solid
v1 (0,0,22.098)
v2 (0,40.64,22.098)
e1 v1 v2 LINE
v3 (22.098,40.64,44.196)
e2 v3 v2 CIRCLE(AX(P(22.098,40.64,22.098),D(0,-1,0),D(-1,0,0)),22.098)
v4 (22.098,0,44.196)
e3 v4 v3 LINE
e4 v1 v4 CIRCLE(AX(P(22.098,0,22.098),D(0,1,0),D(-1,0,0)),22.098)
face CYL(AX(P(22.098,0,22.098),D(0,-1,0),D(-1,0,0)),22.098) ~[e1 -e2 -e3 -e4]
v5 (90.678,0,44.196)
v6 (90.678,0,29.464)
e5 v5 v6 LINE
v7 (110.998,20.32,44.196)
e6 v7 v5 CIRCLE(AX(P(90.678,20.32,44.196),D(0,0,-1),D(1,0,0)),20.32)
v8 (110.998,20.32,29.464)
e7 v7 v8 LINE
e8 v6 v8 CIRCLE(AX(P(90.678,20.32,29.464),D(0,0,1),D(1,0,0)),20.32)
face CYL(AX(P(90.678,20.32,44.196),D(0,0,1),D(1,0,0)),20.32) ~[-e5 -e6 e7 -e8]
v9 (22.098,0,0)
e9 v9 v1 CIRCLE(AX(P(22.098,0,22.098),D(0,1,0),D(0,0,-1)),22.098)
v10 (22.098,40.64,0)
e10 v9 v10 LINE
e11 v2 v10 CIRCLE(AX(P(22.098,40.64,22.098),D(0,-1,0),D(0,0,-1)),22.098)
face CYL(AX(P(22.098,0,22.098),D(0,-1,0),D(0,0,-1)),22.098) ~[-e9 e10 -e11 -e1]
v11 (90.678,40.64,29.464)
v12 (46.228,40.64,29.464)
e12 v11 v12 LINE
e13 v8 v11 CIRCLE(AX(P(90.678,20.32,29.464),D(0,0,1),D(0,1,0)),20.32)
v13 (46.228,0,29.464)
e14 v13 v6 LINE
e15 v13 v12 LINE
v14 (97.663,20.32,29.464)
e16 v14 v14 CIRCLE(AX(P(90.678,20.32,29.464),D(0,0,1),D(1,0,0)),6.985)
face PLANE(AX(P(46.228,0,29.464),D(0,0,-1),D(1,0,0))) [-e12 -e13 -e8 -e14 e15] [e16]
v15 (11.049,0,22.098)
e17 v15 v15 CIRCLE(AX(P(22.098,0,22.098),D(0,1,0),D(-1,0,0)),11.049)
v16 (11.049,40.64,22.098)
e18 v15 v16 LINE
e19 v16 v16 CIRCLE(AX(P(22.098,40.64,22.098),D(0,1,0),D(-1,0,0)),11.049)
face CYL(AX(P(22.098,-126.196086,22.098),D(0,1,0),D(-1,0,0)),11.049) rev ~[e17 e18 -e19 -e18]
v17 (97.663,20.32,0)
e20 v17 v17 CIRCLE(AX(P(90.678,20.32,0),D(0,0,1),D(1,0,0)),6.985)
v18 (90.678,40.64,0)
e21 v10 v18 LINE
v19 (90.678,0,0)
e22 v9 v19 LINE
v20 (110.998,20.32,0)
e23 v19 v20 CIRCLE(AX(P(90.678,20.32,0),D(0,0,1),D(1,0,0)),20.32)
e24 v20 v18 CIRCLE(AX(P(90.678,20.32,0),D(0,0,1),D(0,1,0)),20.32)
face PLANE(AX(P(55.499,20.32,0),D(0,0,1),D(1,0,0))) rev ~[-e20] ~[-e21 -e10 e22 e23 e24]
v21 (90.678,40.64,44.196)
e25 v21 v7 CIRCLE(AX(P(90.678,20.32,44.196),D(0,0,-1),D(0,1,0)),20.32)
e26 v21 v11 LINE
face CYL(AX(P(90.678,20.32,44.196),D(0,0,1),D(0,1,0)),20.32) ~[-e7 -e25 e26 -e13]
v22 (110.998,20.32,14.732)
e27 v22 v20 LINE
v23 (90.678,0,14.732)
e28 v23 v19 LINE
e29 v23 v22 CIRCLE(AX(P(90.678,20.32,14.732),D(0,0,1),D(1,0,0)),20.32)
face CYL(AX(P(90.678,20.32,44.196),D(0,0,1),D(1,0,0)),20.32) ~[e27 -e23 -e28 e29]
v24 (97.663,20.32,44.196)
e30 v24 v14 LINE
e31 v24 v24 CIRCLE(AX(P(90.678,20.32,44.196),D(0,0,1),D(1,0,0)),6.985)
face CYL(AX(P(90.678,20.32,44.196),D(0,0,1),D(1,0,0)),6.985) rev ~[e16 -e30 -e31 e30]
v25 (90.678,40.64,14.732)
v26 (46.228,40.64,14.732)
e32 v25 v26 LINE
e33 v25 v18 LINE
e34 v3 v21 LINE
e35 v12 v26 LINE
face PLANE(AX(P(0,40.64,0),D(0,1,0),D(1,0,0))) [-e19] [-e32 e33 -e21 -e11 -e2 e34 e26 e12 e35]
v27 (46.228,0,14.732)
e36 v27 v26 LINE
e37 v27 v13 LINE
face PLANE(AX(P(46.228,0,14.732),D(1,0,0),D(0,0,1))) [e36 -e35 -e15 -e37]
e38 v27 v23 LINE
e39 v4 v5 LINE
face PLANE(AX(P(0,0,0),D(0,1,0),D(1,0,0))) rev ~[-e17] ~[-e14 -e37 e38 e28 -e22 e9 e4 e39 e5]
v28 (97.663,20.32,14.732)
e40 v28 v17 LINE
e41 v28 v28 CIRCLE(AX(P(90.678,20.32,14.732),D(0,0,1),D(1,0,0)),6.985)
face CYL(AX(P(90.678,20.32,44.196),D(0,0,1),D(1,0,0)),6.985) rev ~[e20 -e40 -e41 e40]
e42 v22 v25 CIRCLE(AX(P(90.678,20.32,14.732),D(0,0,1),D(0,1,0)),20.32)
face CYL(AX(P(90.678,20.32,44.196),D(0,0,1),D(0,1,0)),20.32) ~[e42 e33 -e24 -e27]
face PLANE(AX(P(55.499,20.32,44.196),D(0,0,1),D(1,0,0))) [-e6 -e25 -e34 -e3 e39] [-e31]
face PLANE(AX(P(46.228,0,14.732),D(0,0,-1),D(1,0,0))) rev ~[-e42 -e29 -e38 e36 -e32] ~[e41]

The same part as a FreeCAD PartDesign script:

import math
import FreeCAD as App
import Part
import Sketcher
from FreeCAD import Vector
Q = App.Units.Quantity


def add_polygon(sketch, points):
    """Adds a closed chain of lines whose ends are joined by coincident constraints."""
    first, n = sketch.GeometryCount, len(points)
    for a, b in zip(points, points[1:] + points[:1]):
        sketch.addGeometry(Part.LineSegment(App.Vector(*a, 0), App.Vector(*b, 0)), False)
    for i in range(n):
        sketch.addConstraint(Sketcher.Constraint("Coincident", first + i, 2, first + (i + 1) % n, 1))

doc = App.newDocument("Part")
body = doc.addObject("PartDesign::Body", "Body")

# Sketch on XY plane
sketch1 = body.newObject("Sketcher::SketchObject", "Sketch")
sketch1.AttachmentSupport = (doc.getObject("XY_Plane"), [""])
sketch1.MapMode = "FlatFace"
add_polygon(sketch1, [(0, 41), (0, 0), (111, 0), (111, 41)])  # lines 0-3
sketch1.addConstraint([
    Sketcher.Constraint("Vertical", 0),
    Sketcher.Constraint("Horizontal", 1),
    Sketcher.Constraint("Vertical", 2),
    Sketcher.Constraint("Horizontal", 3),
    Sketcher.Constraint("Coincident", 0, 2, -1, 1),
    Sketcher.Constraint("DistanceY", 0, 2, 0, 1, Q("1.6 in")),
    Sketcher.Constraint("DistanceX", 1, 1, 1, 2, Q("4.37 in")),
])
pad1 = body.newObject("PartDesign::Pad", "Pad")
pad1.Profile = sketch1
pad1.Length = Q("1.74 in")

# Sketch on XZ plane
sketch2 = body.newObject("Sketcher::SketchObject", "Sketch001")
sketch2.AttachmentSupport = (doc.getObject("XZ_Plane"), [""])
sketch2.MapMode = "FlatFace"
sketch2.addGeometry(Part.Circle(Vector(22, 22, 0), Vector(0, 0, 1), 11), False)
sketch2.addConstraint([
    Sketcher.Constraint("Diameter", 0, Q("0.87 in")),
    Sketcher.Constraint("DistanceX", -1, 1, 0, 3, Q("0.87 in")),
    Sketcher.Constraint("DistanceY", -1, 1, 0, 3, Q("0.87 in")),
])
doc.recompute()
hole = body.newObject("PartDesign::Hole", "Hole")
hole.Profile = sketch2
hole.ThreadType = "None"
hole.Diameter = Q("0.87 in")
hole.DepthType = "ThroughAll"

# Sketch on XY plane
sketch3 = body.newObject("Sketcher::SketchObject", "Sketch002")
sketch3.AttachmentSupport = (doc.getObject("XY_Plane"), [""])
sketch3.MapMode = "FlatFace"
sketch3.AttachmentOffset = App.Placement(Vector(0, 0, 1.74 * 25.4), App.Rotation())
sketch3.addGeometry(Part.Circle(Vector(91, 20, 0), Vector(0, 0, 1), 7), False)
sketch3.addConstraint([
    Sketcher.Constraint("Diameter", 0, Q("0.55 in")),
    Sketcher.Constraint("DistanceY", -1, 1, 0, 3, Q("0.8 in")),
    Sketcher.Constraint("DistanceX", -1, 1, 0, 3, Q("3.57 in")),
])
pocket1 = body.newObject("PartDesign::Pocket", "Pocket")
pocket1.Profile = sketch3
pocket1.Type = "ThroughAll"

# Sketch on XY plane
sketch4 = body.newObject("Sketcher::SketchObject", "Sketch003")
sketch4.AttachmentSupport = (doc.getObject("XY_Plane"), [""])
sketch4.MapMode = "FlatFace"
sketch4.AttachmentOffset = App.Placement(Vector(0, 0, 1.74 * 25.4), App.Rotation())
sketch4.addGeometry([
    Part.ArcOfCircle(Part.Circle(Vector(91, 20, 0), Vector(0, 0, 1), 20), math.radians(0), math.radians(90)),  # 0
    Part.LineSegment(Vector(111, 20, 0), Vector(111, 41, 0)),  # 1
    Part.LineSegment(Vector(111, 41, 0), Vector(91, 41, 0)),  # 2
    Part.LineSegment(Vector(111, 0, 0), Vector(111, 20, 0)),  # 3
    Part.ArcOfCircle(Part.Circle(Vector(91, 20, 0), Vector(0, 0, 1), 20), math.radians(-90), math.radians(0)),  # 4
    Part.LineSegment(Vector(91, 0, 0), Vector(111, 0, 0)),  # 5
], False)
sketch4.addConstraint([
    Sketcher.Constraint("Tangent", 0, 1, 1, 1),
    Sketcher.Constraint("Coincident", 1, 2, 2, 1),
    Sketcher.Constraint("Tangent", 2, 2, 0, 2),
    Sketcher.Constraint("Tangent", 3, 2, 4, 2),
    Sketcher.Constraint("Tangent", 4, 1, 5, 1),
    Sketcher.Constraint("Coincident", 5, 2, 3, 1),
    Sketcher.Constraint("Vertical", 1),
    Sketcher.Constraint("Horizontal", 2),
    Sketcher.Constraint("Vertical", 3),
    Sketcher.Constraint("Horizontal", 5),
    Sketcher.Constraint("Coincident", 4, 3, 0, 3),
    Sketcher.Constraint("Equal", 0, 4),
    Sketcher.Constraint("PointOnObject", 4, 1, -1),
    Sketcher.Constraint("Radius", 0, Q("0.8 in")),
    Sketcher.Constraint("DistanceX", -1, 1, 0, 3, Q("3.57 in")),
])
pocket2 = body.newObject("PartDesign::Pocket", "Pocket001")
pocket2.Profile = sketch4
pocket2.Type = "ThroughAll"

# Sketch on XZ plane
sketch5 = body.newObject("Sketcher::SketchObject", "Sketch004")
sketch5.AttachmentSupport = (doc.getObject("XZ_Plane"), [""])
sketch5.MapMode = "FlatFace"
add_polygon(sketch5, [(46, 29), (46, 15), (111, 15), (111, 29)])  # lines 0-3
sketch5.addConstraint([
    Sketcher.Constraint("Vertical", 0),
    Sketcher.Constraint("Horizontal", 1),
    Sketcher.Constraint("Vertical", 2),
    Sketcher.Constraint("Horizontal", 3),
    Sketcher.Constraint("DistanceX", 1, 1, 1, 2, Q("2.55 in")),
    Sketcher.Constraint("DistanceY", 0, 2, 0, 1, Q("0.58 in")),
    Sketcher.Constraint("DistanceX", -1, 1, 0, 2, Q("1.82 in")),
    Sketcher.Constraint("DistanceY", -1, 1, 0, 2, Q("0.58 in")),
])
pocket3 = body.newObject("PartDesign::Pocket", "Pocket002")
pocket3.Profile = sketch5
pocket3.Type = "ThroughAll"

# Sketch on XZ plane
sketch6 = body.newObject("Sketcher::SketchObject", "Sketch005")
sketch6.AttachmentSupport = (doc.getObject("XZ_Plane"), [""])
sketch6.MapMode = "FlatFace"
sketch6.addGeometry([
    Part.ArcOfCircle(Part.Circle(Vector(22, 22, 0), Vector(0, 0, 1), 22), math.radians(90), math.radians(180)),  # 0
    Part.LineSegment(Vector(22, 44, 0), Vector(0, 44, 0)),  # 1
    Part.LineSegment(Vector(0, 44, 0), Vector(0, 22, 0)),  # 2
    Part.LineSegment(Vector(0, 0, 0), Vector(22, 0, 0)),  # 3
    Part.ArcOfCircle(Part.Circle(Vector(22, 22, 0), Vector(0, 0, 1), 22), math.radians(180), math.radians(270)),  # 4
    Part.LineSegment(Vector(0, 22, 0), Vector(0, 0, 0)),  # 5
], False)
sketch6.addConstraint([
    Sketcher.Constraint("Tangent", 0, 1, 1, 1),
    Sketcher.Constraint("Coincident", 1, 2, 2, 1),
    Sketcher.Constraint("Tangent", 2, 2, 0, 2),
    Sketcher.Constraint("Tangent", 3, 2, 4, 2),
    Sketcher.Constraint("Tangent", 4, 1, 5, 1),
    Sketcher.Constraint("Coincident", 5, 2, 3, 1),
    Sketcher.Constraint("Horizontal", 1),
    Sketcher.Constraint("Vertical", 2),
    Sketcher.Constraint("Horizontal", 3),
    Sketcher.Constraint("Vertical", 5),
    Sketcher.Constraint("Coincident", 5, 2, -1, 1),
    Sketcher.Constraint("Coincident", 4, 3, 0, 3),
    Sketcher.Constraint("Equal", 0, 4),
    Sketcher.Constraint("Radius", 0, Q("0.87 in")),
])
pocket4 = body.newObject("PartDesign::Pocket", "Pocket003")
pocket4.Profile = sketch6
pocket4.Type = "ThroughAll"

doc.recompute()
